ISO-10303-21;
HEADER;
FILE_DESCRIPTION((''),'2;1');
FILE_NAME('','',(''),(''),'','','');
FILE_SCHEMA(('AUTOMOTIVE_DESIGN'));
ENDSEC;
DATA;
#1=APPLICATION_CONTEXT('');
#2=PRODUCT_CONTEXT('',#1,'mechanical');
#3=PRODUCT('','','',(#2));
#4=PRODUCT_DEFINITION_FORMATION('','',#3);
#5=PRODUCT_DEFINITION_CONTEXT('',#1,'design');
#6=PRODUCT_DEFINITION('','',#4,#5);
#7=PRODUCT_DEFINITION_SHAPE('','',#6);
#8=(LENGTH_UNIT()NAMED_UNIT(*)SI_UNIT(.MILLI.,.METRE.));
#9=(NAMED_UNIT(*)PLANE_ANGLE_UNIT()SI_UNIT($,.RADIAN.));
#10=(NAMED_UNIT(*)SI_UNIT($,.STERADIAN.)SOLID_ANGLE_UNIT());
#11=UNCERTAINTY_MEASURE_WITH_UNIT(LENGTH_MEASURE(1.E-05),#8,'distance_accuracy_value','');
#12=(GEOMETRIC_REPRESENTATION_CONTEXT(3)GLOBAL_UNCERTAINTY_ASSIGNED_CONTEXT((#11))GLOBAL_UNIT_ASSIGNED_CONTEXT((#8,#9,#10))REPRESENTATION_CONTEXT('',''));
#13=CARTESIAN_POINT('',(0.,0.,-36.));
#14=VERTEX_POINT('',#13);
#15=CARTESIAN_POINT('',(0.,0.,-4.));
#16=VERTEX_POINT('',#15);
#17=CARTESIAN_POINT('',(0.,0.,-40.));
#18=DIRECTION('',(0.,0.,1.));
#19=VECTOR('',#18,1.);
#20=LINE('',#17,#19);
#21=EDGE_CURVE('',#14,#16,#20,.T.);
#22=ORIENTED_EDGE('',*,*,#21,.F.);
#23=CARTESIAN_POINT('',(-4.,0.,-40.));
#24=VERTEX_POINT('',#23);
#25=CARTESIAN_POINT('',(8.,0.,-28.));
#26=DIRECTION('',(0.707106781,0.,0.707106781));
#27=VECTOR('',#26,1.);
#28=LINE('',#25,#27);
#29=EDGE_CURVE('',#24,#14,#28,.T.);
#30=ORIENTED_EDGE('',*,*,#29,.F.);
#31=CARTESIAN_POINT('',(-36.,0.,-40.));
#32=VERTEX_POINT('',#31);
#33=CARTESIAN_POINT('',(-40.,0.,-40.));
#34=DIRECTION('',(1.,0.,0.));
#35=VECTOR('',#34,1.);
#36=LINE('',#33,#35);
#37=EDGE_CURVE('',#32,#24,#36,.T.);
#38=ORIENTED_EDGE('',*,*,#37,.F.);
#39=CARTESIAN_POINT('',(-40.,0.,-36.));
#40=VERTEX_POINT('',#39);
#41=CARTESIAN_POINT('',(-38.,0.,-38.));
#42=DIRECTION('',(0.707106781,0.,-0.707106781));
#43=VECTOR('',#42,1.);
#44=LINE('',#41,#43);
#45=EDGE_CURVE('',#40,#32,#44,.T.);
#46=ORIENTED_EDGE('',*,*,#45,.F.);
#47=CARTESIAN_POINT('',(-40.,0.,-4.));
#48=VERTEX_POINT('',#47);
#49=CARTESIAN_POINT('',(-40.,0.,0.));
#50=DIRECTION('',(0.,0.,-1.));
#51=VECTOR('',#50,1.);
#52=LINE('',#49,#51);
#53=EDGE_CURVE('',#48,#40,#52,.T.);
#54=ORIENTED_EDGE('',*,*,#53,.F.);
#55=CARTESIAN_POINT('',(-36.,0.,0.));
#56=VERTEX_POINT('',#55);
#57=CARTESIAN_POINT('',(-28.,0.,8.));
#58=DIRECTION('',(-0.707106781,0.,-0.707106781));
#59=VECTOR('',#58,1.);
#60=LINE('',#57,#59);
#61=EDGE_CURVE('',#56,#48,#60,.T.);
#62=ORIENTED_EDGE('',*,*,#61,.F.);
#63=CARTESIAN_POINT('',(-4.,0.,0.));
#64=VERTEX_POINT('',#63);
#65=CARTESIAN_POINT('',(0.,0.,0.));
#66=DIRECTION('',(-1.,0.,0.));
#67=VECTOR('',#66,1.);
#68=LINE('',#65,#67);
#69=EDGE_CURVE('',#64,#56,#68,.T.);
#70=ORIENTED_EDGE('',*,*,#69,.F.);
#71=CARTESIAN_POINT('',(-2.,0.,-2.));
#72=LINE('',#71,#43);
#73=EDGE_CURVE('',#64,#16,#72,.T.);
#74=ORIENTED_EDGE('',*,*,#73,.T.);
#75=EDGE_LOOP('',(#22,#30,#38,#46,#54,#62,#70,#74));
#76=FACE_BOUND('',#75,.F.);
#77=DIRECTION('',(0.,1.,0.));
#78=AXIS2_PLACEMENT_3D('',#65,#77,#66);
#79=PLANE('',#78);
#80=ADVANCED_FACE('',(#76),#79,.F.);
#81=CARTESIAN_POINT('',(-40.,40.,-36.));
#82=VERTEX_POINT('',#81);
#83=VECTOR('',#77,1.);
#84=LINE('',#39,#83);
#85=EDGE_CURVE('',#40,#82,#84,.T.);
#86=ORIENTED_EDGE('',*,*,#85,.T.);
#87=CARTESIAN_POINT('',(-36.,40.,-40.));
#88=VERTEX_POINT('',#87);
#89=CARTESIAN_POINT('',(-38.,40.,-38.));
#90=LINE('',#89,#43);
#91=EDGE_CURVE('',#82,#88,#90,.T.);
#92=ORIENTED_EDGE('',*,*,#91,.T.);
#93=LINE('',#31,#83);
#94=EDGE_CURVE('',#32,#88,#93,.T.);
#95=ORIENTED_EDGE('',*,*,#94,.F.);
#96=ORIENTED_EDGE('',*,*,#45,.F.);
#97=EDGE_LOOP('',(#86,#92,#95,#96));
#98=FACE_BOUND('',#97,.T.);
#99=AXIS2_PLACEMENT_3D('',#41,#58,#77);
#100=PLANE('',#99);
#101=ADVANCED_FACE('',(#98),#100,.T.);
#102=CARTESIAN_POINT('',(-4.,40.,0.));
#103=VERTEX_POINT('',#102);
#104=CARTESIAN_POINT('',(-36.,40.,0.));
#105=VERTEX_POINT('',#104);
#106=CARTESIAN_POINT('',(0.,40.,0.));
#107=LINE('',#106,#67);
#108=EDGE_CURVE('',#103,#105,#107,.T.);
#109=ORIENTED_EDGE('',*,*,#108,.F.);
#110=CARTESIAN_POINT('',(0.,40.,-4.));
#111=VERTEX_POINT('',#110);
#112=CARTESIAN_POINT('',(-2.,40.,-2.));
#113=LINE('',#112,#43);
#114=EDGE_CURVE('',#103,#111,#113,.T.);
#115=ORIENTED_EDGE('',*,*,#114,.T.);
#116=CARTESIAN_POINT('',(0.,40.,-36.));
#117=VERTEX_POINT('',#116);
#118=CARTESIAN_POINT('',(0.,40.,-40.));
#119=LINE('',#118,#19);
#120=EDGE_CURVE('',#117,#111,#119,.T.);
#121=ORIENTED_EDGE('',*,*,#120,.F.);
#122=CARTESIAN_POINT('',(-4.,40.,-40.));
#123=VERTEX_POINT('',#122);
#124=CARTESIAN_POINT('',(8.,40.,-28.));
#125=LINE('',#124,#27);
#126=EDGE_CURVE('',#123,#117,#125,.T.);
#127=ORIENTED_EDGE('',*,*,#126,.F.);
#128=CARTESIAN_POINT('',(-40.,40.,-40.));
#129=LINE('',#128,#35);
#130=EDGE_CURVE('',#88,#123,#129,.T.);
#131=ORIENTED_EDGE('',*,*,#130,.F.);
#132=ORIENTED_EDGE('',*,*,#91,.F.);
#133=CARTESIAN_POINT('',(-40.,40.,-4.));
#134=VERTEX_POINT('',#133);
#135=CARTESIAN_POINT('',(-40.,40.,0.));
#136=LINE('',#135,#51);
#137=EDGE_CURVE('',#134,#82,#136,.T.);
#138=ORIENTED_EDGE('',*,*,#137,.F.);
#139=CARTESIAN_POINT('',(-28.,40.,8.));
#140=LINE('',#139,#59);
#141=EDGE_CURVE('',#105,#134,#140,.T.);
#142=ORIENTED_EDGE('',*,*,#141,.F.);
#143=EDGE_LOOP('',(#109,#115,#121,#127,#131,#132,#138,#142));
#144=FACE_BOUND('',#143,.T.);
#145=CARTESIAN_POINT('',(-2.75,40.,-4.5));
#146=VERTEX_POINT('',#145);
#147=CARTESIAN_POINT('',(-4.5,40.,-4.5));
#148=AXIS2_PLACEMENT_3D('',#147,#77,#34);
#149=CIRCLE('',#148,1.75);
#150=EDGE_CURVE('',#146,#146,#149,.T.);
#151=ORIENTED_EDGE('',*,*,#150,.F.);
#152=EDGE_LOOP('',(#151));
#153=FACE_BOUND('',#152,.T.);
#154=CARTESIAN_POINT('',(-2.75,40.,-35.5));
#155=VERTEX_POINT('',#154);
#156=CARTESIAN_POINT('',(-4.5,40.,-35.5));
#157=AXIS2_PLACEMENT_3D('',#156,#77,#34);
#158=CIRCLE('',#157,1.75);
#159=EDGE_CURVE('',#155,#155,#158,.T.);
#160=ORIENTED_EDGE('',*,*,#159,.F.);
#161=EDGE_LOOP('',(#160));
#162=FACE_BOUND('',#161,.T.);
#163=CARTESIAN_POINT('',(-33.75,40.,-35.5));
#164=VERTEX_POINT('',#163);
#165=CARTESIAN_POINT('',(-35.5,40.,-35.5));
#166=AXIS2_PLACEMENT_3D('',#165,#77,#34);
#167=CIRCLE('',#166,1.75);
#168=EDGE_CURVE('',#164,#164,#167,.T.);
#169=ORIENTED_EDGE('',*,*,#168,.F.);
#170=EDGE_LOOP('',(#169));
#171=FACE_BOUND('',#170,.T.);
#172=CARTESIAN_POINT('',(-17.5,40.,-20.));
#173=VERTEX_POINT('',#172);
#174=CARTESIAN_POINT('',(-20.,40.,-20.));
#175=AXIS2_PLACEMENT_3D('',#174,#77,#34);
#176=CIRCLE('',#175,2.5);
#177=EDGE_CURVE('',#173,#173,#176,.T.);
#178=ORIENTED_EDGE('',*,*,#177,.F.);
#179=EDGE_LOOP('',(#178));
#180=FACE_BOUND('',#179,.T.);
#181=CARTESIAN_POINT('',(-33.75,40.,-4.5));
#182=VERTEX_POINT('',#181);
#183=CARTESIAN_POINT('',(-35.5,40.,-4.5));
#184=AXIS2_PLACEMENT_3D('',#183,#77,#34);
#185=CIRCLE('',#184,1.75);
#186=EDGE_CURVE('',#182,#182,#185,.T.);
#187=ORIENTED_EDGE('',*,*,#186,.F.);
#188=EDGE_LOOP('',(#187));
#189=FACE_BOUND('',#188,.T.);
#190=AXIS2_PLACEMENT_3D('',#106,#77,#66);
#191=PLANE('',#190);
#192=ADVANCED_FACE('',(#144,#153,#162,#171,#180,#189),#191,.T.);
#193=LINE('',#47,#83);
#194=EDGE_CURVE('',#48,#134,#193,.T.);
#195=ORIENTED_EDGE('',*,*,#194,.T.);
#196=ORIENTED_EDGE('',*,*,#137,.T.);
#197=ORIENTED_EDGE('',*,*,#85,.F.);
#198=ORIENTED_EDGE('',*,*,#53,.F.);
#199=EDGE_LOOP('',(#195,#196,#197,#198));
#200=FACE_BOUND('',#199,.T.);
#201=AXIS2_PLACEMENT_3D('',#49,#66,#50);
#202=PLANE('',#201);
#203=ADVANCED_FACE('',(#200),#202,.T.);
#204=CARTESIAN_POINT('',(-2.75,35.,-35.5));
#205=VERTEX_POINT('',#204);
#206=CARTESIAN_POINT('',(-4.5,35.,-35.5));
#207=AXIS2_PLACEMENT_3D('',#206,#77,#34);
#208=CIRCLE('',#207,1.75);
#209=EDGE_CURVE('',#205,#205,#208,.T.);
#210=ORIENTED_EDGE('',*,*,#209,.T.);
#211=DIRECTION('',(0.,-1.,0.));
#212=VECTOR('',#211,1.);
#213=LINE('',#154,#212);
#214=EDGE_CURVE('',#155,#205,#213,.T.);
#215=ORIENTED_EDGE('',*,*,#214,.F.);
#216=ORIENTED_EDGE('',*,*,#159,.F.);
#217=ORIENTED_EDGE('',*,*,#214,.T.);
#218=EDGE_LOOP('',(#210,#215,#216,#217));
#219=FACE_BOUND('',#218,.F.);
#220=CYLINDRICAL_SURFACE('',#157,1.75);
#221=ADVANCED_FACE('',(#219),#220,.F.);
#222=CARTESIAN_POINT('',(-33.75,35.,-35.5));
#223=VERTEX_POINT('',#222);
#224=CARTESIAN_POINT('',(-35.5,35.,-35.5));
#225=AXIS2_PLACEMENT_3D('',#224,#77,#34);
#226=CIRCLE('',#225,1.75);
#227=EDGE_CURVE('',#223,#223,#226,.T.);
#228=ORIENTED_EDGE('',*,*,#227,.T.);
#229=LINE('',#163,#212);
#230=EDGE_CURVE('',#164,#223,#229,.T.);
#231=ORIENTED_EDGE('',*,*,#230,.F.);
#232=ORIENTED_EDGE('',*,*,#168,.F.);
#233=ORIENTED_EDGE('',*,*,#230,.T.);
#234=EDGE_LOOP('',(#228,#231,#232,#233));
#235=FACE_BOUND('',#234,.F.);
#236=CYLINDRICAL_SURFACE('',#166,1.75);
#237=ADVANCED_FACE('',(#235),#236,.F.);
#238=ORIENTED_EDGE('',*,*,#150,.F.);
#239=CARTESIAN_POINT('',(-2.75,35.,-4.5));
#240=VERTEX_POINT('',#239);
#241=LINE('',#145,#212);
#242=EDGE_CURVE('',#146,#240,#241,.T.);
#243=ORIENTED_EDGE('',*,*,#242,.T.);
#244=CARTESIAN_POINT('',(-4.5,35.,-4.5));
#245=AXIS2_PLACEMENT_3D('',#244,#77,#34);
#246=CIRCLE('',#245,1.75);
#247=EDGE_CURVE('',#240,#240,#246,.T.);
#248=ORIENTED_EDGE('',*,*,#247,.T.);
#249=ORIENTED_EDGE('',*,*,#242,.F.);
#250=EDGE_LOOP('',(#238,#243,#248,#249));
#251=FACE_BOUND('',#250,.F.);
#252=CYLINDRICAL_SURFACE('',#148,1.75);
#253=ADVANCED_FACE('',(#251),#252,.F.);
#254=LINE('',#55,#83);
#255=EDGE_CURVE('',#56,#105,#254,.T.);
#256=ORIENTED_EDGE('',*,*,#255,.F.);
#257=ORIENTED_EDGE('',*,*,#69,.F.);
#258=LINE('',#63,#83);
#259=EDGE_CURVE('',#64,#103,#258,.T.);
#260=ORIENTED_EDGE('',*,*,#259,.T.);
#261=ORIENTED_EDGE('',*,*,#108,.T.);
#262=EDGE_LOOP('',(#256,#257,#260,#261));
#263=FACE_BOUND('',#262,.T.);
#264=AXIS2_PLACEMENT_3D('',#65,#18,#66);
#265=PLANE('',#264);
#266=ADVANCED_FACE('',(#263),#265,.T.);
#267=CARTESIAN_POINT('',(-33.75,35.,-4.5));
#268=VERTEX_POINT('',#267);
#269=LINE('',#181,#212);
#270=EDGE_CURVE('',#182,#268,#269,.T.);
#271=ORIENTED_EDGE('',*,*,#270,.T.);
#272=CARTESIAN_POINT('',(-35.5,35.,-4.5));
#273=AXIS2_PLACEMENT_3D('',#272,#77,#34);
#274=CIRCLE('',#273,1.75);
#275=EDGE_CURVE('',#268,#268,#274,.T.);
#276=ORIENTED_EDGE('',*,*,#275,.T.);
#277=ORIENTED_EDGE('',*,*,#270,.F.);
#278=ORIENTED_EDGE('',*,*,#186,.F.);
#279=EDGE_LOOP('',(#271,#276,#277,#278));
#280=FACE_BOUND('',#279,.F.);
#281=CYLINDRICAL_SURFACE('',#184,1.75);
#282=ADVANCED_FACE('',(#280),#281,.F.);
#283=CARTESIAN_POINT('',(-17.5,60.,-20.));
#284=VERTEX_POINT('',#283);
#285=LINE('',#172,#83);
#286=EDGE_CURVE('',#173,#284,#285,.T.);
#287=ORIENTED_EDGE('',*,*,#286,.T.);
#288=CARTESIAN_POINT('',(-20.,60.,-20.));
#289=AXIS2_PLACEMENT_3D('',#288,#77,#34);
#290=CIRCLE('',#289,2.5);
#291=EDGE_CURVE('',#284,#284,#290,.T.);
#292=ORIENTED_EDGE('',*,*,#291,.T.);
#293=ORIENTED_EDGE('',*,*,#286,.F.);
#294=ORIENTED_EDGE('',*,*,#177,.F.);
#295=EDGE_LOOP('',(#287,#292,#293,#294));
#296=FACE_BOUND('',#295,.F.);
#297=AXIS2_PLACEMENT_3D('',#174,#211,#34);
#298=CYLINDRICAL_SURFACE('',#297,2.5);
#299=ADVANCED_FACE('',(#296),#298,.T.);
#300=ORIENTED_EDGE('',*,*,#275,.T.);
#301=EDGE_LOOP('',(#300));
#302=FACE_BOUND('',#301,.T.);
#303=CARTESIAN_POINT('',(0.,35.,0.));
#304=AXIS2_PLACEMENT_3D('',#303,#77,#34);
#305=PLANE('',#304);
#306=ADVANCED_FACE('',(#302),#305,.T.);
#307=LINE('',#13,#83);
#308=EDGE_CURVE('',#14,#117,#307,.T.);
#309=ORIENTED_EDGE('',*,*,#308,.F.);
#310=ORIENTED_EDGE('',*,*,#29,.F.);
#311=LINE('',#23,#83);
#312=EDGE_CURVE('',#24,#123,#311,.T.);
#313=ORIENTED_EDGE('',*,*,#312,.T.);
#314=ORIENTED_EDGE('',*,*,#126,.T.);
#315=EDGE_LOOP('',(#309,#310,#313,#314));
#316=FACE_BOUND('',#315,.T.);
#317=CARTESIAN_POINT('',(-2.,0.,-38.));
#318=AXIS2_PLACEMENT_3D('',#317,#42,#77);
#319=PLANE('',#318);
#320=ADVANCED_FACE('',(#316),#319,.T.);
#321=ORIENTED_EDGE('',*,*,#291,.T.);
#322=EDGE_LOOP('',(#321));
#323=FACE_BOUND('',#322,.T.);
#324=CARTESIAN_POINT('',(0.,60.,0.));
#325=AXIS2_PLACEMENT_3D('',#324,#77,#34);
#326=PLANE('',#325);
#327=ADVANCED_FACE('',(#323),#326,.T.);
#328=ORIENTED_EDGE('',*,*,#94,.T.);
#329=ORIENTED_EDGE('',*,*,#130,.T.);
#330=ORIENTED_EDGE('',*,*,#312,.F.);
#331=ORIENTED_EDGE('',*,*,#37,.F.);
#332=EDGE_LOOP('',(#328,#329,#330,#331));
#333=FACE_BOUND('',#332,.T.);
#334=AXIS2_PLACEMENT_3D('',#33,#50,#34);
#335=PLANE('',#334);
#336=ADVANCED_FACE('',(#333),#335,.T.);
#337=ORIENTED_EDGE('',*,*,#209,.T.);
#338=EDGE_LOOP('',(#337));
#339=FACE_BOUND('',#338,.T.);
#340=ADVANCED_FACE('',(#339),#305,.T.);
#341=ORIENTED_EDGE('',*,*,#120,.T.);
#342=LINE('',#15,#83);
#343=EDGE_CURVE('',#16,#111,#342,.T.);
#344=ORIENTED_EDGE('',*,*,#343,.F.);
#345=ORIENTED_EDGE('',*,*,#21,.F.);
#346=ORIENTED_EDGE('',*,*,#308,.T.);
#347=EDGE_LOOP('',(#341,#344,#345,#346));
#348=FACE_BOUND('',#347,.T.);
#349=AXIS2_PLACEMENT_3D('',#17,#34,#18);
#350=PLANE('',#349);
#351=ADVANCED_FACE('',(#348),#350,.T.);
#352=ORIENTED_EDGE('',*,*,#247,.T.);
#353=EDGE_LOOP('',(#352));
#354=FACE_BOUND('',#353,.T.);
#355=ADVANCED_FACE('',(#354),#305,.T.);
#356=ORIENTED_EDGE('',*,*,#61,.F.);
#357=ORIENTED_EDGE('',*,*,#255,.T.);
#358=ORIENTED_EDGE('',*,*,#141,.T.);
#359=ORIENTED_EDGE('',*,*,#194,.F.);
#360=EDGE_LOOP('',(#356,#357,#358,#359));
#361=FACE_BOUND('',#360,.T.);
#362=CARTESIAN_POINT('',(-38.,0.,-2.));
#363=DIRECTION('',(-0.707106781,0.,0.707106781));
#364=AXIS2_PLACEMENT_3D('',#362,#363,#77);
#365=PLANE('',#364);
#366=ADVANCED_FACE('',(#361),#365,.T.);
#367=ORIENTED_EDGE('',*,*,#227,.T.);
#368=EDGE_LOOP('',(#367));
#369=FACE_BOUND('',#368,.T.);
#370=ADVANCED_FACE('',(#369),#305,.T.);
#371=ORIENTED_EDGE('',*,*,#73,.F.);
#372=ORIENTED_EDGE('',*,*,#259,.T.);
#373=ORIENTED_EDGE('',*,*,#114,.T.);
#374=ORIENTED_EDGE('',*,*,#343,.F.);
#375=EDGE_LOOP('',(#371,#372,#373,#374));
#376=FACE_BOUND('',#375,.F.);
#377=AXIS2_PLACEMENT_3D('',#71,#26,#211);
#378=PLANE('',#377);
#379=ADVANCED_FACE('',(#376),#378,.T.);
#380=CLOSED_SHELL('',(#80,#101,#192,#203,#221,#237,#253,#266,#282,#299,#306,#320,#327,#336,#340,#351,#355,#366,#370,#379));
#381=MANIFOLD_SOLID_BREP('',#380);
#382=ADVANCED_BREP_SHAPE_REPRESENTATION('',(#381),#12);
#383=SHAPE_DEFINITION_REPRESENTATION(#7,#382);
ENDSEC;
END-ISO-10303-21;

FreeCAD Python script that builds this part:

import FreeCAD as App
import Part
import Sketcher
from FreeCAD import Vector
Q = App.Units.Quantity


def edges_at(feature, points):
    """Names of the edges that pass closest to the given points."""
    edges = feature.Shape.Edges
    near = lambda p: min(range(len(edges)), key=lambda i: edges[i].distToShape(Part.Vertex(*p))[0])
    return sorted({f"Edge{near(p) + 1}" for p in points})

doc = App.newDocument("Part")
body = doc.addObject("PartDesign::Body", "Body")

# Sketch on XZ plane
sketch1 = body.newObject("Sketcher::SketchObject", "Sketch")
sketch1.AttachmentSupport = (doc.getObject("XZ_Plane"), [""])
sketch1.MapMode = "FlatFace"
sketch1.addGeometry([
    Part.LineSegment(Vector(-40, 0, 0), Vector(0, 0, 0)),
    Part.LineSegment(Vector(0, 0, 0), Vector(0, -40, 0)),
    Part.LineSegment(Vector(0, -40, 0), Vector(-40, -40, 0)),
    Part.LineSegment(Vector(-40, -40, 0), Vector(-40, 0, 0)),
], False)
sketch1.addConstraint([
    Sketcher.Constraint("Coincident", 0, 2, 1, 1),
    Sketcher.Constraint("Coincident", 1, 2, 2, 1),
    Sketcher.Constraint("Coincident", 2, 2, 3, 1),
    Sketcher.Constraint("Coincident", 3, 2, 0, 1),
    Sketcher.Constraint("Horizontal", 0),
    Sketcher.Constraint("Vertical", 1),
    Sketcher.Constraint("Horizontal", 2),
    Sketcher.Constraint("Vertical", 3),
    Sketcher.Constraint("Coincident", 0, 2, -1, 1),
    Sketcher.Constraint("Equal", 2, 1),
    Sketcher.Constraint("DistanceX", 0, 1, 0, 2, Q("40 mm")),
])
pad1 = body.newObject("PartDesign::Pad", "Pad")
pad1.Profile = sketch1
pad1.Length = 40
pad1.Reversed = True
doc.recompute()

chamfer = body.newObject("PartDesign::Chamfer", "Chamfer")
chamfer.Base = (pad1, edges_at(pad1, [
    (0, 20, 0),
    (0, 20, -40),
    (-40, 20, 0),
    (-40, 20, -40),
]))
chamfer.Size = 4

# Sketch on XZ plane
sketch2 = body.newObject("Sketcher::SketchObject", "Sketch001")
sketch2.AttachmentSupport = (doc.getObject("XZ_Plane"), [""])
sketch2.MapMode = "FlatFace"
sketch2.AttachmentOffset = App.Placement(Vector(0, 0, -40), App.Rotation())
sketch2.addGeometry(Part.Circle(Vector(-20, -20, 0), Vector(0, 0, 1), 2.5), False)
sketch2.addConstraint([
    Sketcher.Constraint("Diameter", 0, Q("5 mm")),
    Sketcher.Constraint("DistanceX", 0, 3, -1, 1, Q("20 mm")),
    Sketcher.Constraint("DistanceY", 0, 3, -1, 1, Q("20 mm")),
])
pad2 = body.newObject("PartDesign::Pad", "Pad001")
pad2.Profile = sketch2
pad2.Length = 20
pad2.Reversed = True

# Sketch on XZ plane
sketch3 = body.newObject("Sketcher::SketchObject", "Sketch002")
sketch3.AttachmentSupport = (doc.getObject("XZ_Plane"), [""])
sketch3.MapMode = "FlatFace"
sketch3.AttachmentOffset = App.Placement(Vector(0, 0, -40), App.Rotation())
sketch3.addGeometry([
    Part.Circle(Vector(-4.5, -4.5, 0), Vector(0, 0, 1), 1.8),
    Part.Circle(Vector(-4.5, -35.5, 0), Vector(0, 0, 1), 1.8),
    Part.Circle(Vector(-35.5, -4.5, 0), Vector(0, 0, 1), 1.8),
    Part.Circle(Vector(-35.5, -35.5, 0), Vector(0, 0, 1), 1.8),
], False)
sketch3.addConstraint([
    Sketcher.Constraint("Equal", 0, 1),
    Sketcher.Constraint("Equal", 1, 2),
    Sketcher.Constraint("Equal", 2, 3),
    Sketcher.Constraint("Horizontal", 0, 3, 2, 3),
    Sketcher.Constraint("Horizontal", 1, 3, 3, 3),
    Sketcher.Constraint("Vertical", 0, 3, 1, 3),
    Sketcher.Constraint("Vertical", 2, 3, 3, 3),
    Sketcher.Constraint("Diameter", 0, Q("3.5 mm")),
    Sketcher.Constraint("DistanceY", 1, 3, 0, 3, Q("31 mm")),
    Sketcher.Constraint("DistanceX", 2, 3, 0, 3, Q("31 mm")),
    Sketcher.Constraint("DistanceX", 0, 3, -1, 1, Q("4.5 mm")),
    Sketcher.Constraint("DistanceY", 0, 3, -1, 1, Q("4.5 mm")),
])
pocket1 = body.newObject("PartDesign::Pocket", "Pocket")
pocket1.Profile = sketch3
pocket1.Length = 5
pocket1.Reversed = True

doc.recompute()
